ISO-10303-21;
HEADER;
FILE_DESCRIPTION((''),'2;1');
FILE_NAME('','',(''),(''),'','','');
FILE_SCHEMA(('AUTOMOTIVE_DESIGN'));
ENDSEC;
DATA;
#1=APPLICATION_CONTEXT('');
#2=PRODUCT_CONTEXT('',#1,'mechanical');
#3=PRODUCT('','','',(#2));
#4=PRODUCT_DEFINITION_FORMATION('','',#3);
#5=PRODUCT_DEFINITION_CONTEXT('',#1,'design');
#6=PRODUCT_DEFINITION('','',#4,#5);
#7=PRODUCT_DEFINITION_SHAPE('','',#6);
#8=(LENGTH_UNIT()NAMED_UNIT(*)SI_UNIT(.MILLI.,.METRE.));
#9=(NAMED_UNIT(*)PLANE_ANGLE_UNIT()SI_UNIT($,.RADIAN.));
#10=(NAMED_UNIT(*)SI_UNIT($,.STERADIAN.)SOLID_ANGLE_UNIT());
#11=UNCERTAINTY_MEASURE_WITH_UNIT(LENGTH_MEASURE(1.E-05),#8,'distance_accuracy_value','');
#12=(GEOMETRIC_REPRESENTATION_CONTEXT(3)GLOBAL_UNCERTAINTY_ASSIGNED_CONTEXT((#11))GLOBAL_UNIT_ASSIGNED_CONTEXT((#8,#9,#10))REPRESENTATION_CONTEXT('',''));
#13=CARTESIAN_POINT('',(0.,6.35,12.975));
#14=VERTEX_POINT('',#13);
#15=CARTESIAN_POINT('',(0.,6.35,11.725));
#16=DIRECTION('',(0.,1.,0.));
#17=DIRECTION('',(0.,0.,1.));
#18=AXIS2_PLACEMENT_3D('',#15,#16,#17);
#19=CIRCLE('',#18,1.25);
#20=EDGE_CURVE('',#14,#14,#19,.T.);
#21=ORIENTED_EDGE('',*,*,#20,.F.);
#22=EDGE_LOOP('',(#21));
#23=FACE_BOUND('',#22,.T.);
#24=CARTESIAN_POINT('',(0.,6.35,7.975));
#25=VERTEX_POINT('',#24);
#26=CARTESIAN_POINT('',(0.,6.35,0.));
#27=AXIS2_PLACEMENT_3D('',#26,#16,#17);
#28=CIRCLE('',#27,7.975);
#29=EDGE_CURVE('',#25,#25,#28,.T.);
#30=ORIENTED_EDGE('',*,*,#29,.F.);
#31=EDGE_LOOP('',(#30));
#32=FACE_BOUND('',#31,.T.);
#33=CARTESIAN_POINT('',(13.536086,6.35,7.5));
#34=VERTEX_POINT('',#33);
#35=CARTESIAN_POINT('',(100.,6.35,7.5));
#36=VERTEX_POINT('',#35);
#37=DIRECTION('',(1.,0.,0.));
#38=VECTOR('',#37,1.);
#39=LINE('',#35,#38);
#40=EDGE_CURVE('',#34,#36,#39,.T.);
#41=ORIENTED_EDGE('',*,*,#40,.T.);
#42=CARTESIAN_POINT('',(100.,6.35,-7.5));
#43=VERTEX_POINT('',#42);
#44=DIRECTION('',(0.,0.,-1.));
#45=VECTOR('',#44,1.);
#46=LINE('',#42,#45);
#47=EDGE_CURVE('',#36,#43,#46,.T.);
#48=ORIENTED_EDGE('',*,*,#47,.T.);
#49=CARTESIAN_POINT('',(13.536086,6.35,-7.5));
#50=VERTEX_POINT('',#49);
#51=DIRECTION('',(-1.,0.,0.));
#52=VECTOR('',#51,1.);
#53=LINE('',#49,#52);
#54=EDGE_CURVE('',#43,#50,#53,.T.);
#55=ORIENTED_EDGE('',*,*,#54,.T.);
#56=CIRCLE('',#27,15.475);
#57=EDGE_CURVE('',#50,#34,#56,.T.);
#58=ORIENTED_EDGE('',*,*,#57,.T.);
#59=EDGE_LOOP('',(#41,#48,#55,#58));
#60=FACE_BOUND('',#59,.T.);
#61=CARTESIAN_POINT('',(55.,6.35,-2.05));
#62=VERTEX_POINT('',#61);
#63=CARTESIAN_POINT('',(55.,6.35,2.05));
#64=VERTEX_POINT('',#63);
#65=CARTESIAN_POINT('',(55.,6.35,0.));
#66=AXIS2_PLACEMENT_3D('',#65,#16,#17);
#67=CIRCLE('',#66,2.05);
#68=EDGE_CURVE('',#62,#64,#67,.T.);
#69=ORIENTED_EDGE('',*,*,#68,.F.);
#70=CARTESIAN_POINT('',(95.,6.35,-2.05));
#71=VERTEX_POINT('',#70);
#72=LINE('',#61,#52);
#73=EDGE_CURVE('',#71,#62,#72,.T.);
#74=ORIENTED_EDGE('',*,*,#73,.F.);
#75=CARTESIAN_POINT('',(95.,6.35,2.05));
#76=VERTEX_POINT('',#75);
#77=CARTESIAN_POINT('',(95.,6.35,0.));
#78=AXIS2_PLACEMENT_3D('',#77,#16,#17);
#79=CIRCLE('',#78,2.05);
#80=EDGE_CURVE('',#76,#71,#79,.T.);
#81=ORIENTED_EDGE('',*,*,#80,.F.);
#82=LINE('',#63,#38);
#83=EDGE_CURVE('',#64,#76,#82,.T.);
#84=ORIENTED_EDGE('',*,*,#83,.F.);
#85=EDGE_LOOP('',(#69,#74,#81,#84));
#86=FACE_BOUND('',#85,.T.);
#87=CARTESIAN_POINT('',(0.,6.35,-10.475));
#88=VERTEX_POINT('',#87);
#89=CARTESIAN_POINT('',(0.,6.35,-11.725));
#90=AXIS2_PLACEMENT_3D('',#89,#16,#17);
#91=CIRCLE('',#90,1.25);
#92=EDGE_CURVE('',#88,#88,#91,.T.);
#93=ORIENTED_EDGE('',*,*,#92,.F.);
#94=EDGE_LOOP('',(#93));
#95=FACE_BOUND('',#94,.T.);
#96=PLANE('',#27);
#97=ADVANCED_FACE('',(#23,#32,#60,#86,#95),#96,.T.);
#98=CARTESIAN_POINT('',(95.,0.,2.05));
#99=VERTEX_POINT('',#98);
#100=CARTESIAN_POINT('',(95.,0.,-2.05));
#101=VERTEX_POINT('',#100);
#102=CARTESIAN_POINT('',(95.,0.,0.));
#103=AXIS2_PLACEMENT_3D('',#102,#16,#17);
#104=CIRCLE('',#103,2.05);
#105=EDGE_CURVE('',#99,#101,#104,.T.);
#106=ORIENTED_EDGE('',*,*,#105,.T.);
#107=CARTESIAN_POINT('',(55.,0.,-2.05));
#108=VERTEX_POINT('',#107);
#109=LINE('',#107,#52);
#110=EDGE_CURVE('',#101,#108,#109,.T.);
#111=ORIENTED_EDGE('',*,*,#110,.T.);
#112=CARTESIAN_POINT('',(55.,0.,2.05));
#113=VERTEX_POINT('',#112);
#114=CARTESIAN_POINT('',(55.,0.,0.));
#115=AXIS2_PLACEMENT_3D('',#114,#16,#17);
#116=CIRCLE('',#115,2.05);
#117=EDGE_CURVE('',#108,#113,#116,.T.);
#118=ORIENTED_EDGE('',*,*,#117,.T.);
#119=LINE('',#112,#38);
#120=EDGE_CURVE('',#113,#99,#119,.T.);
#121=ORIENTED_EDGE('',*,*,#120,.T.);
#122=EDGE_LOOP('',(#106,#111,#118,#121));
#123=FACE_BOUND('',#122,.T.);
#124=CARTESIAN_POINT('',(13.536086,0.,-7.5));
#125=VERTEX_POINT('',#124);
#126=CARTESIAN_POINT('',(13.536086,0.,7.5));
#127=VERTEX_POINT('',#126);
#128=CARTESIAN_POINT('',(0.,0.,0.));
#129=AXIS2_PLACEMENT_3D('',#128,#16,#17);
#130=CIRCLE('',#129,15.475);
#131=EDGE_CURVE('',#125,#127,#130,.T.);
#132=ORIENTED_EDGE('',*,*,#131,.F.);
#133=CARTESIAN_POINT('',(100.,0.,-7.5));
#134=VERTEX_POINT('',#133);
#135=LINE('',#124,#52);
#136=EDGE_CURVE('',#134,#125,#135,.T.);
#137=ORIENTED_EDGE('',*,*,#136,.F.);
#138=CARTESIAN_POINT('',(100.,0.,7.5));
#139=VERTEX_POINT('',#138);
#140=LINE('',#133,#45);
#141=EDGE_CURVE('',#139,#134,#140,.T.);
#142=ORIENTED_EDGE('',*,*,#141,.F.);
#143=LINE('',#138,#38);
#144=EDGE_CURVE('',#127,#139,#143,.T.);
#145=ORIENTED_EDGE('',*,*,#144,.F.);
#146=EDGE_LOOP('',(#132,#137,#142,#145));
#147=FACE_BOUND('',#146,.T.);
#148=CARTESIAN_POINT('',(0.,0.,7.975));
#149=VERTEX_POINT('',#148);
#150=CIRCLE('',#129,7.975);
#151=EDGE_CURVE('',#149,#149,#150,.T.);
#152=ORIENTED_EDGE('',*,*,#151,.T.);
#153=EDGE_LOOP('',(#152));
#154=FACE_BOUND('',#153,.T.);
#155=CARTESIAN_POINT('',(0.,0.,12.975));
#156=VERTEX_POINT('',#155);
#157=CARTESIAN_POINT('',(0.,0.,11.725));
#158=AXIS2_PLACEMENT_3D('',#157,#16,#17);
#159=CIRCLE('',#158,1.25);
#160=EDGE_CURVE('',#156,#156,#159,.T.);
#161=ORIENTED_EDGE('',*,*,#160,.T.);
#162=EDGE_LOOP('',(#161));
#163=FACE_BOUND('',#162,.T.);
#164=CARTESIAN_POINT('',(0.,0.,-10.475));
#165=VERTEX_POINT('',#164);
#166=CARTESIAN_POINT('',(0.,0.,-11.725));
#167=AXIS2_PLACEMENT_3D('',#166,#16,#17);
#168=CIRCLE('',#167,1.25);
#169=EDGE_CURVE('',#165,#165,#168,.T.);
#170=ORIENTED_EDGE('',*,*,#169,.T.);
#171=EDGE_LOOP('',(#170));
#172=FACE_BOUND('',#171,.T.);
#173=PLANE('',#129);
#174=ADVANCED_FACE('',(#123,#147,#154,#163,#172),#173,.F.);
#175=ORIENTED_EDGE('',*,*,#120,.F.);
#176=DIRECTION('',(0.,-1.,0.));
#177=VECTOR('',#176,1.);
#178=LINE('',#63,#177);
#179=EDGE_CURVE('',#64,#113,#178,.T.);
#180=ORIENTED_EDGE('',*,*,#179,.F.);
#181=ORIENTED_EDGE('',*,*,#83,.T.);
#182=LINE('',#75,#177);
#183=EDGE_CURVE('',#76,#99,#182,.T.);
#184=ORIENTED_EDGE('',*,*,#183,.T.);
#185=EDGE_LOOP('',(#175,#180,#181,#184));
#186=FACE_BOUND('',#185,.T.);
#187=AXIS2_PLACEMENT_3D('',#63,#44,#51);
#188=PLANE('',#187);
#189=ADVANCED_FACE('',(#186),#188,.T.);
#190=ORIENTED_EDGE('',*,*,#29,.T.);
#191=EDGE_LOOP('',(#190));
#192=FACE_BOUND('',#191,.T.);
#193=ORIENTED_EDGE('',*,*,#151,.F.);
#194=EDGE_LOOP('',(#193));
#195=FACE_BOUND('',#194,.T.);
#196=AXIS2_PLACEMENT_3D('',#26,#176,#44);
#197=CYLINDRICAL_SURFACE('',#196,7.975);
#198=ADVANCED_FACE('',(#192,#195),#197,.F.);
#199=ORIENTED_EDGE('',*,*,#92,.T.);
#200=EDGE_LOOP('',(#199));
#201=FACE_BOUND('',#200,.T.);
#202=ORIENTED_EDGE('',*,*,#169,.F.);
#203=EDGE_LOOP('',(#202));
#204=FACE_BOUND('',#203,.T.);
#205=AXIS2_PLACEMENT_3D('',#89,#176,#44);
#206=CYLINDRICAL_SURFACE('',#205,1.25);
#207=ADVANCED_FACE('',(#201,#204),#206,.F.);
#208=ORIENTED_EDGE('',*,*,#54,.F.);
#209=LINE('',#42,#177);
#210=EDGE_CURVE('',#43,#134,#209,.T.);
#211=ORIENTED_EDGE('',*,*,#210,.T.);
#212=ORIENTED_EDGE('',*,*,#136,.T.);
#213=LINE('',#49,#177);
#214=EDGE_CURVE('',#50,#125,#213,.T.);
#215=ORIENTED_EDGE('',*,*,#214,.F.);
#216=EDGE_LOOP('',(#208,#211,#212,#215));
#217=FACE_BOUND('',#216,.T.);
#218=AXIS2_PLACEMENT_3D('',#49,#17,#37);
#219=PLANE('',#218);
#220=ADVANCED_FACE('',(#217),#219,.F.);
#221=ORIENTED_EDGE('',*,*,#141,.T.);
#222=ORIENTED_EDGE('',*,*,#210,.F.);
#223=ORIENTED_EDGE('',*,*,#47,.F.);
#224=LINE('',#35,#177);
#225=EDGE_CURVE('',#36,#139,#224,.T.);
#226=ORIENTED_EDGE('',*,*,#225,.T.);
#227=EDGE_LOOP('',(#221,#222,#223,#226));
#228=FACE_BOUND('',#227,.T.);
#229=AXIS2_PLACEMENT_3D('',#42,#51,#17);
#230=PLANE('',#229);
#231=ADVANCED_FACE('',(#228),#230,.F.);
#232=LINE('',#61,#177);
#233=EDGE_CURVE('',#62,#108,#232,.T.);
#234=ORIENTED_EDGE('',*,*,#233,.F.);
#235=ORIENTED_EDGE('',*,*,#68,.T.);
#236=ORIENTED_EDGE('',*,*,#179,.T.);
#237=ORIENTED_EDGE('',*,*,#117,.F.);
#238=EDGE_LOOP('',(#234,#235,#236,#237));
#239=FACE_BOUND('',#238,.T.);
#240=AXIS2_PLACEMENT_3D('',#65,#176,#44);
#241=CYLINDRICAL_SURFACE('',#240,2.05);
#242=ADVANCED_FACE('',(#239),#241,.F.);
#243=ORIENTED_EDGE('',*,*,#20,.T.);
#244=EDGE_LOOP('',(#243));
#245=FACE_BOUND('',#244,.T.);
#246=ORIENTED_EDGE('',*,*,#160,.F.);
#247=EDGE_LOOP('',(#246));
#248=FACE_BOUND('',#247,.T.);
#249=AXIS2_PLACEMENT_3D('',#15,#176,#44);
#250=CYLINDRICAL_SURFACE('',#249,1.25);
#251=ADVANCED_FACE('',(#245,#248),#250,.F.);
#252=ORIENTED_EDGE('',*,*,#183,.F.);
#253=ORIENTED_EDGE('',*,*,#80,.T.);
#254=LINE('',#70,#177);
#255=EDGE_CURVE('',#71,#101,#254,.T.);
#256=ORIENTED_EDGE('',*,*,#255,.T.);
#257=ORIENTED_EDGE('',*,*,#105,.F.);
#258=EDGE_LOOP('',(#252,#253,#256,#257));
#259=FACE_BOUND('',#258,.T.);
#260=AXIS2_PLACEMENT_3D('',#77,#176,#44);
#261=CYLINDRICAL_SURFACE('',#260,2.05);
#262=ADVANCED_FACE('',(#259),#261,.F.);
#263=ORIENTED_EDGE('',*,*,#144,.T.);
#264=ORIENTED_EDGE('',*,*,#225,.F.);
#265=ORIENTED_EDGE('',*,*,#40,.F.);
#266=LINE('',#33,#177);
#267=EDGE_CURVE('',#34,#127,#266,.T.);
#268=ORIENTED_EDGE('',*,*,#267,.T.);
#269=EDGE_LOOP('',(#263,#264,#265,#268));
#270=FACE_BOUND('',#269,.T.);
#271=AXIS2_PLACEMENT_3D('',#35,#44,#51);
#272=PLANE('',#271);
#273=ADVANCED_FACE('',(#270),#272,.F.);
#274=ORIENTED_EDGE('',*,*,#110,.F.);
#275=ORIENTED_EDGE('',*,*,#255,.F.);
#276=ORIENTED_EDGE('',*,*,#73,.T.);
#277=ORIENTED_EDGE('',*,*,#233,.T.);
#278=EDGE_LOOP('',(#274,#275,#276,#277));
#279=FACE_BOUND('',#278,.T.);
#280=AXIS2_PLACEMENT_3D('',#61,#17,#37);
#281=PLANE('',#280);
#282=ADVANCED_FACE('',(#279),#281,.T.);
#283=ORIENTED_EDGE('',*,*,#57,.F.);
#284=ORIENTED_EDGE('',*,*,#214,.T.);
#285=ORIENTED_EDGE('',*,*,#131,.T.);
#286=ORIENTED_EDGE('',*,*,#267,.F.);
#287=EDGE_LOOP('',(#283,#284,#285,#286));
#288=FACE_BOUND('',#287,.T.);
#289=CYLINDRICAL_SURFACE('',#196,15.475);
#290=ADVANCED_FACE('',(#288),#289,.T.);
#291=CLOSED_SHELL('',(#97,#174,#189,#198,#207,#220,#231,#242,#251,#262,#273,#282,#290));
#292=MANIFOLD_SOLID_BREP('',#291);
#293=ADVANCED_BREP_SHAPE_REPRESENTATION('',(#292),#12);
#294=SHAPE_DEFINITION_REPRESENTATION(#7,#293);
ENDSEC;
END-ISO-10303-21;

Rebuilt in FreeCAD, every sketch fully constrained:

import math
import FreeCAD as App
import Part
import Sketcher

V = App.Vector
Q = App.Units.Quantity

doc = App.newDocument("Part")
body = doc.addObject("PartDesign::Body", "Body")

sketch1 = body.newObject("Sketcher::SketchObject", "Sketch")
sketch1.AttachmentSupport = (doc.getObject("XZ_Plane"), [""])
sketch1.MapMode = "FlatFace"
sketch1.addGeometry([
    Part.LineSegment(V(100, -7.5, 0), V(13.5, -7.5, 0)),
    Part.ArcOfCircle(Part.Circle(V(0, 0, 0), V(0, 0, 1), 15.5), math.radians(29), math.radians(331)),
    Part.LineSegment(V(13.5, 7.5, 0), V(100, 7.5, 0)),
    Part.LineSegment(V(100, 7.5, 0), V(100, -7.5, 0)),
    Part.Circle(V(0, 11.7, 0), V(0, 0, 1), 1.2),
    Part.LineSegment(V(55, -2, 0), V(95, -2, 0)),
    Part.ArcOfCircle(Part.Circle(V(95, 0, 0), V(0, 0, 1), 2), math.radians(-90), math.radians(90)),
    Part.LineSegment(V(95, 2, 0), V(55, 2, 0)),
    Part.ArcOfCircle(Part.Circle(V(55, 0, 0), V(0, 0, 1), 2), math.radians(90), math.radians(270)),
    Part.Circle(V(0, 0, 0), V(0, 0, 1), 8),
    Part.Circle(V(0, -11.7, 0), V(0, 0, 1), 1.2),
], False)
sketch1.addConstraint([
    Sketcher.Constraint("Coincident", 0, 2, 1, 2),
    Sketcher.Constraint("Coincident", 1, 1, 2, 1),
    Sketcher.Constraint("Coincident", 2, 2, 3, 1),
    Sketcher.Constraint("Coincident", 3, 2, 0, 1),
    Sketcher.Constraint("Tangent", 5, 2, 6, 1),
    Sketcher.Constraint("Tangent", 6, 2, 7, 1),
    Sketcher.Constraint("Tangent", 7, 2, 8, 1),
    Sketcher.Constraint("Tangent", 8, 2, 5, 1),
    Sketcher.Constraint("Horizontal", 0),
    Sketcher.Constraint("Horizontal", 2),
    Sketcher.Constraint("Vertical", 3),
    Sketcher.Constraint("Horizontal", 5),
    Sketcher.Constraint("Horizontal", 7),
    Sketcher.Constraint("Coincident", 1, 3, -1, 1),
    Sketcher.Constraint("Coincident", 9, 3, -1, 1),
    Sketcher.Constraint("Equal", 4, 10),
    Sketcher.Constraint("Symmetric", 4, 3, 10, 3, -1, 1),
    Sketcher.Constraint("PointOnObject", 4, 3, -2),
    Sketcher.Constraint("PointOnObject", 6, 3, -1),
    Sketcher.Constraint("Vertical", 0, 2, 1, 1),
    Sketcher.Constraint("Diameter", 4, Q("2.5 mm")),
    Sketcher.Constraint("Diameter", 9, Q("15.95 mm")),
    Sketcher.Constraint("DistanceX", 5, 1, 5, 2, Q("40 mm")),
    Sketcher.Constraint("DistanceY", 3, 2, 3, 1, Q("15 mm")),
    Sketcher.Constraint("Radius", 6, Q("2.05 mm")),
    Sketcher.Constraint("DistanceX", -1, 1, 6, 3, Q("95 mm")),
    Sketcher.Constraint("DistanceX", -1, 1, 2, 2, Q("100 mm")),
    Sketcher.Constraint("Radius", 1, Q("15.475 mm")),
    Sketcher.Constraint("DistanceY", 10, 3, 4, 3, Q("23.45 mm")),
])
pad1 = body.newObject("PartDesign::Pad", "Pad")
pad1.Profile = sketch1
pad1.Length = 6.35
pad1.Reversed = True

doc.recompute()
